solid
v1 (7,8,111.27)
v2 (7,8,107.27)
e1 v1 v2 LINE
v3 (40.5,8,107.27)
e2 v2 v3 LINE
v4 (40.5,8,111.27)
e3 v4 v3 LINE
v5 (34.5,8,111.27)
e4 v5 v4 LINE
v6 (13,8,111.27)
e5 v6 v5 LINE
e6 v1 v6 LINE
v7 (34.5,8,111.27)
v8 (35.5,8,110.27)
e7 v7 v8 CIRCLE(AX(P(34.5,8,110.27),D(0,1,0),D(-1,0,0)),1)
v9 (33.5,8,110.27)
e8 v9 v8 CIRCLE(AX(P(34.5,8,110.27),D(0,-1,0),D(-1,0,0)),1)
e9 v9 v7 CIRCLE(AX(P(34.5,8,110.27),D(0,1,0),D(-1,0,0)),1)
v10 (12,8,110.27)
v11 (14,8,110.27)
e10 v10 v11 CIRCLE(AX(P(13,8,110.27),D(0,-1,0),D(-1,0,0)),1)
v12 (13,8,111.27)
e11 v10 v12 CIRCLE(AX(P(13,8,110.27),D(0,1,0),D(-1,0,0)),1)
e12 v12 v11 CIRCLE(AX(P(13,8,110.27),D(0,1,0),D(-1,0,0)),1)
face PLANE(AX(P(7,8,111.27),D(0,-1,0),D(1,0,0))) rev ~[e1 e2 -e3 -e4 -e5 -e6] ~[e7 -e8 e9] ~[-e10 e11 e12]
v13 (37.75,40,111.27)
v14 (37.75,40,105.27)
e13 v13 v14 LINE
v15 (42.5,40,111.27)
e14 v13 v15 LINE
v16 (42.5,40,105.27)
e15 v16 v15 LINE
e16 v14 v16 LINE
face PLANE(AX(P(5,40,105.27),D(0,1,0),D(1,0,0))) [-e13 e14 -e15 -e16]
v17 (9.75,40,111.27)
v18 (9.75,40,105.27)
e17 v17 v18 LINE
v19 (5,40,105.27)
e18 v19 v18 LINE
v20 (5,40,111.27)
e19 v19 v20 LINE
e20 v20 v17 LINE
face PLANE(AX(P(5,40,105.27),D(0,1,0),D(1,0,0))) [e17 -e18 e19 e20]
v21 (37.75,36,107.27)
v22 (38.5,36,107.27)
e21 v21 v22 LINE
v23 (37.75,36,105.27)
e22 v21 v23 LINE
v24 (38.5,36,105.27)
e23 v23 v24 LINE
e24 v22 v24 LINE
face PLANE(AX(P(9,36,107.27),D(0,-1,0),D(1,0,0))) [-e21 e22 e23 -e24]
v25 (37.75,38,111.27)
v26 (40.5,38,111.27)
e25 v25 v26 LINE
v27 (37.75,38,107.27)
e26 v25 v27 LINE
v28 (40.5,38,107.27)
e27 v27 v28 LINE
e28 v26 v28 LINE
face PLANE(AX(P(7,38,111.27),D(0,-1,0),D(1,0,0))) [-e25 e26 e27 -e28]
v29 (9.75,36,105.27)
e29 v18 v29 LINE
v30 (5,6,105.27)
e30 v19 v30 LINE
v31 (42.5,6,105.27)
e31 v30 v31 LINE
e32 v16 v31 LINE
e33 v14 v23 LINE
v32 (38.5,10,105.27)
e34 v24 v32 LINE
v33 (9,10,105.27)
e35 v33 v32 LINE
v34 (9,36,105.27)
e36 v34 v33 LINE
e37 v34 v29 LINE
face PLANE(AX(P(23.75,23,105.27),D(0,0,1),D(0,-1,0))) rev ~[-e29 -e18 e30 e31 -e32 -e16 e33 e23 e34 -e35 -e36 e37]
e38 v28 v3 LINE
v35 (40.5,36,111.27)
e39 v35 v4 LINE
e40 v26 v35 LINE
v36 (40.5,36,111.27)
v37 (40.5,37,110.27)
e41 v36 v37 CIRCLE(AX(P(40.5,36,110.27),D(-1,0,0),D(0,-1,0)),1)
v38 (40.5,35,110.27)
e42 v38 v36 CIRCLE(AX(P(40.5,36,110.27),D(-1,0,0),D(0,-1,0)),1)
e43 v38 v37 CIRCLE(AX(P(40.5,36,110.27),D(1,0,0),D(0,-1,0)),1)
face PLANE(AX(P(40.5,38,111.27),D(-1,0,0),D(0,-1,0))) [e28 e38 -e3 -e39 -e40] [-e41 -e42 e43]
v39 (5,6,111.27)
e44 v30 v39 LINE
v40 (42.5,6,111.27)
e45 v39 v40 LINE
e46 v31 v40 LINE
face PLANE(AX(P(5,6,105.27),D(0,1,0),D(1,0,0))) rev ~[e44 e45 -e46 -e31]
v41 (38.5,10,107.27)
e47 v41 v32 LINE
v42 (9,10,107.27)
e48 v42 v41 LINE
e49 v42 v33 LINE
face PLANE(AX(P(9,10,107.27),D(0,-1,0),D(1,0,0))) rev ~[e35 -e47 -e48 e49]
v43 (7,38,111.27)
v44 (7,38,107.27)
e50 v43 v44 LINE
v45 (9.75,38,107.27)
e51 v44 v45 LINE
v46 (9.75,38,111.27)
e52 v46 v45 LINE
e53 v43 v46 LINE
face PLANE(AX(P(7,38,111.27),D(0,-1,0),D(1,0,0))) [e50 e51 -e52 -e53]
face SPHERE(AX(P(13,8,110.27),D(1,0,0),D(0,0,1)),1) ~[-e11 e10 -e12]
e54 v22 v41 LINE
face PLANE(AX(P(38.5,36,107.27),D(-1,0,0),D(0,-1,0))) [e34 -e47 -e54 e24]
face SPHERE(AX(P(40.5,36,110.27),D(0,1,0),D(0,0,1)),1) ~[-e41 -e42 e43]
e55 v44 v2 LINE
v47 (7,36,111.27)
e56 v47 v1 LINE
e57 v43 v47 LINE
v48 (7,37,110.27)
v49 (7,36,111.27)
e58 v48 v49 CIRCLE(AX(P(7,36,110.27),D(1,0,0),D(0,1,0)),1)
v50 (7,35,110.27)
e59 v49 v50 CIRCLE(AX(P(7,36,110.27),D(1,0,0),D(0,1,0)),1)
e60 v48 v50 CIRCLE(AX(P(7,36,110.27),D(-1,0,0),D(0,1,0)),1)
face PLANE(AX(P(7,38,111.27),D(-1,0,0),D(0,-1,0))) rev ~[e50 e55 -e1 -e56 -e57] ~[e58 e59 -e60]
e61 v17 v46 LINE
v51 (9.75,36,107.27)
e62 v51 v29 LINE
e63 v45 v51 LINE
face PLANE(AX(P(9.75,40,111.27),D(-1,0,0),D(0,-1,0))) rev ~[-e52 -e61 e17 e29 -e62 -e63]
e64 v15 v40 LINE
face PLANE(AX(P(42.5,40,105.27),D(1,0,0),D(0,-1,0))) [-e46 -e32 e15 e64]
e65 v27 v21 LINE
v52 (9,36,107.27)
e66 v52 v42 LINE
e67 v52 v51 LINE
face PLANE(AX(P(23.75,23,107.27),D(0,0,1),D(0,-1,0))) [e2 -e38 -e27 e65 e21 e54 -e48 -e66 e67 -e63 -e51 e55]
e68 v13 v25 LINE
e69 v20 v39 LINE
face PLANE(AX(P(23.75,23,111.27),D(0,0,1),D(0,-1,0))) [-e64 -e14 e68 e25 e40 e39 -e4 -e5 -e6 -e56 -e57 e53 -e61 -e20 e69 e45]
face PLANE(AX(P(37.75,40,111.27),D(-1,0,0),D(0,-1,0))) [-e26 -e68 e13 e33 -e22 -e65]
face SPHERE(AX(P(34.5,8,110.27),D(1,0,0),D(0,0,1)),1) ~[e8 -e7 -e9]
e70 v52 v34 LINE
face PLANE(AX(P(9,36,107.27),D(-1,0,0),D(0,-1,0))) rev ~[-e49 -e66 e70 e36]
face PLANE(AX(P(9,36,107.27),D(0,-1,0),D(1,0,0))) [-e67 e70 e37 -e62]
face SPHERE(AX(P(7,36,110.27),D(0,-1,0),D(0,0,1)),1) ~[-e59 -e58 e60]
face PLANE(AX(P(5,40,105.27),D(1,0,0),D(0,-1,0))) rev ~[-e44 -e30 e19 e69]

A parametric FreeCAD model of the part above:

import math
import FreeCAD as App
import Part
import Sketcher
from FreeCAD import Vector
Q = App.Units.Quantity


def add_polygon(sketch, points):
    """Adds a closed chain of lines whose ends are joined by coincident constraints."""
    first, n = sketch.GeometryCount, len(points)
    for a, b in zip(points, points[1:] + points[:1]):
        sketch.addGeometry(Part.LineSegment(App.Vector(*a, 0), App.Vector(*b, 0)), False)
    for i in range(n):
        sketch.addConstraint(Sketcher.Constraint("Coincident", first + i, 2, first + (i + 1) % n, 1))

doc = App.newDocument("Part")
params = doc.addObject("Spreadsheet::Sheet", "Params")
for row, (alias, value) in enumerate([
    ("sketch1_width", "34 mm"),
    ("sketch1_height", "37.5 mm"),
    ("pad1_length", "6 mm"),
    ("sketch2_width", "30 mm"),
    ("sketch2_height", "33.5 mm"),
    ("pocket1_length", "4 mm"),
    ("sketch3_width", "26 mm"),
    ("sketch3_height", "29.5 mm"),
    ("sketch4_width", "4 mm"),
    ("sketch4_height", "28 mm"),
    ("sketch5_radius", "1 mm"),
    ("sketch5_width", "23.5 mm"),
    ("revolution_angle", "180 deg"),
    ("sketch6_radius", "1 mm"),
    ("revolution2_angle", "180 deg"),
    ("sketch7_radius", "1 mm"),
    ("revolution3_angle", "180 deg"),
], start=1):
    params.set(f"A{row}", alias)
    params.set(f"B{row}", "=" + value)
    params.setAlias(f"B{row}", alias)

body = doc.addObject("PartDesign::Body", "Body")

# Sketch on XY plane
sketch1 = body.newObject("Sketcher::SketchObject", "Sketch")
sketch1.AttachmentSupport = (doc.getObject("XY_Plane"), [""])
sketch1.MapMode = "FlatFace"
add_polygon(sketch1, [(0, 38), (0, 0), (34, 0), (34, 38)])  # lines 0-3
sketch1.addConstraint([
    Sketcher.Constraint("Vertical", 0),
    Sketcher.Constraint("Horizontal", 1),
    Sketcher.Constraint("Vertical", 2),
    Sketcher.Constraint("Horizontal", 3),
    Sketcher.Constraint("Coincident", 0, 2, -1, 1),
    Sketcher.Constraint("DistanceX", 1, 1, 1, 2, Q("34 mm")),
    Sketcher.Constraint("DistanceY", 0, 2, 0, 1, Q("37.5 mm")),
])
sketch1.setExpression("Constraints[9]", "Params.sketch1_width")
sketch1.setExpression("Constraints[10]", "Params.sketch1_height")
pad1 = body.newObject("PartDesign::Pad", "Pad")
pad1.Profile = sketch1
pad1.setExpression("Length", "Params.pad1_length")

# Sketch on XY plane
sketch2 = body.newObject("Sketcher::SketchObject", "Sketch001")
sketch2.AttachmentSupport = (doc.getObject("XY_Plane"), [""])
sketch2.MapMode = "FlatFace"
sketch2.AttachmentOffset = App.Placement(Vector(0, 0, 6), App.Rotation())
add_polygon(sketch2, [(2, 36), (2, 2), (32, 2), (32, 36)])  # lines 0-3
sketch2.addConstraint([
    Sketcher.Constraint("Vertical", 0),
    Sketcher.Constraint("Horizontal", 1),
    Sketcher.Constraint("Vertical", 2),
    Sketcher.Constraint("Horizontal", 3),
    Sketcher.Constraint("DistanceX", 1, 1, 1, 2, Q("30 mm")),
    Sketcher.Constraint("DistanceY", 0, 2, 0, 1, Q("33.5 mm")),
    Sketcher.Constraint("DistanceX", -1, 1, 0, 2, Q("2 mm")),
    Sketcher.Constraint("DistanceY", -1, 1, 0, 2, Q("2 mm")),
])
sketch2.setExpression("Constraints[8]", "Params.sketch2_width")
sketch2.setExpression("Constraints[9]", "Params.sketch2_height")
pocket1 = body.newObject("PartDesign::Pocket", "Pocket")
pocket1.Profile = sketch2
pocket1.setExpression("Length", "Params.pocket1_length")

# Sketch on XY plane
sketch3 = body.newObject("Sketcher::SketchObject", "Sketch002")
sketch3.AttachmentSupport = (doc.getObject("XY_Plane"), [""])
sketch3.MapMode = "FlatFace"
sketch3.AttachmentOffset = App.Placement(Vector(0, 0, 2), App.Rotation())
add_polygon(sketch3, [(4, 34), (4, 4), (30, 4), (30, 34)])  # lines 0-3
sketch3.addConstraint([
    Sketcher.Constraint("Vertical", 0),
    Sketcher.Constraint("Horizontal", 1),
    Sketcher.Constraint("Vertical", 2),
    Sketcher.Constraint("Horizontal", 3),
    Sketcher.Constraint("DistanceX", 1, 1, 1, 2, Q("26 mm")),
    Sketcher.Constraint("DistanceY", 0, 2, 0, 1, Q("29.5 mm")),
    Sketcher.Constraint("DistanceX", -1, 1, 0, 2, Q("4 mm")),
    Sketcher.Constraint("DistanceY", -1, 1, 0, 2, Q("4 mm")),
])
sketch3.setExpression("Constraints[8]", "Params.sketch3_width")
sketch3.setExpression("Constraints[9]", "Params.sketch3_height")
pocket2 = body.newObject("PartDesign::Pocket", "Pocket001")
pocket2.Profile = sketch3
pocket2.Type = "ThroughAll"

# Sketch on XY plane
sketch4 = body.newObject("Sketcher::SketchObject", "Sketch003")
sketch4.AttachmentSupport = (doc.getObject("XY_Plane"), [""])
sketch4.MapMode = "FlatFace"
sketch4.AttachmentOffset = App.Placement(Vector(0, 0, 6), App.Rotation())
add_polygon(sketch4, [(0, 32.8), (0, 4.8), (4, 4.8), (4, 32.8)])  # lines 0-3
sketch4.addConstraint([
    Sketcher.Constraint("Vertical", 0),
    Sketcher.Constraint("Horizontal", 1),
    Sketcher.Constraint("Vertical", 2),
    Sketcher.Constraint("Horizontal", 3),
    Sketcher.Constraint("PointOnObject", 0, 2, -2),
    Sketcher.Constraint("DistanceX", 1, 1, 1, 2, Q("4 mm")),
    Sketcher.Constraint("DistanceY", 0, 2, 0, 1, Q("28 mm")),
    Sketcher.Constraint("DistanceY", -1, 1, 0, 2, Q("4.75 mm")),
])
sketch4.setExpression("Constraints[9]", "Params.sketch4_width")
sketch4.setExpression("Constraints[10]", "Params.sketch4_height")
pocket3 = body.newObject("PartDesign::Pocket", "Pocket002")
pocket3.Profile = sketch4
pocket3.Type = "ThroughAll"

# Sketch on YZ plane
sketch5 = body.newObject("Sketcher::SketchObject", "Sketch004")
sketch5.AttachmentSupport = (doc.getObject("YZ_Plane"), [""])
sketch5.MapMode = "FlatFace"
sketch5.AttachmentOffset = App.Placement(Vector(0, 0, 32), App.Rotation())
sketch5.addGeometry([
    Part.ArcOfCircle(Part.Circle(Vector(29.5, 5, 0), Vector(0, 0, 1), 1), math.radians(0), math.radians(180)),
    Part.LineSegment(Vector(30.5, 5, 0), Vector(28.5, 5, 0)),
    Part.ArcOfCircle(Part.Circle(Vector(8, 5, 0), Vector(0, 0, 1), 1), math.radians(0), math.radians(180)),
    Part.LineSegment(Vector(9, 5, 0), Vector(7, 5, 0)),
], False)
sketch5.addGeometry(Part.LineSegment(Vector(30.5, 5, 0), Vector(7, 5, 0)), True)  # axis
sketch5.addConstraint([
    Sketcher.Constraint("Coincident", 0, 1, 1, 1),
    Sketcher.Constraint("Coincident", 1, 2, 0, 2),
    Sketcher.Constraint("Coincident", 2, 1, 3, 1),
    Sketcher.Constraint("Coincident", 3, 2, 2, 2),
    Sketcher.Constraint("Horizontal", 1),
    Sketcher.Constraint("Horizontal", 3),
    Sketcher.Constraint("Horizontal", 4),
    Sketcher.Constraint("Coincident", 4, 1, 0, 1),
    Sketcher.Constraint("Coincident", 4, 2, 3, 2),
    Sketcher.Constraint("Equal", 0, 2),
    Sketcher.Constraint("Horizontal", 0, 3, 2, 3),
    Sketcher.Constraint("Horizontal", 2, 3, 0, 1),
    Sketcher.Constraint("Radius", 0, Q("1 mm")),
    Sketcher.Constraint("DistanceX", 4, 2, 4, 1, Q("23.5 mm")),
    Sketcher.Constraint("DistanceY", -1, 1, 0, 3, Q("5 mm")),
    Sketcher.Constraint("DistanceX", -1, 1, 2, 3, Q("8 mm")),
])
sketch5.setExpression("Constraints[12]", "Params.sketch5_radius")
sketch5.setExpression("Constraints[13]", "Params.sketch5_width")
revolution = body.newObject("PartDesign::Revolution", "Revolution")
revolution.Profile = sketch5
revolution.ReferenceAxis = (sketch5, ["Axis0"])
revolution.setExpression("Angle", "Params.revolution_angle")

# Sketch on XZ plane
sketch6 = body.newObject("Sketcher::SketchObject", "Sketch005")
sketch6.AttachmentSupport = (doc.getObject("XZ_Plane"), [""])
sketch6.MapMode = "FlatFace"
sketch6.AttachmentOffset = App.Placement(Vector(0, 0, -2), App.Rotation())
sketch6.addGeometry([
    Part.ArcOfCircle(Part.Circle(Vector(4, 5, 0), Vector(0, 0, 1), 1), math.radians(0), math.radians(180)),
    Part.LineSegment(Vector(5, 5, 0), Vector(3, 5, 0)),
], False)
sketch6.addGeometry(Part.LineSegment(Vector(3, 5, 0), Vector(5, 5, 0)), True)  # axis
sketch6.addConstraint([
    Sketcher.Constraint("Coincident", 0, 1, 1, 1),
    Sketcher.Constraint("Coincident", 1, 2, 0, 2),
    Sketcher.Constraint("Horizontal", 1),
    Sketcher.Constraint("Horizontal", 2),
    Sketcher.Constraint("Coincident", 2, 1, 1, 2),
    Sketcher.Constraint("Equal", 1, 2),
    Sketcher.Constraint("Radius", 0, Q("1 mm")),
    Sketcher.Constraint("DistanceX", -1, 1, 0, 3, Q("4 mm")),
    Sketcher.Constraint("DistanceY", -1, 1, 0, 3, Q("5 mm")),
    Sketcher.Constraint("DistanceY", -1, 1, 0, 1, Q("5 mm")),
])
sketch6.setExpression("Constraints[6]", "Params.sketch6_radius")
revolution2 = body.newObject("PartDesign::Revolution", "Revolution001")
revolution2.Profile = sketch6
revolution2.ReferenceAxis = (sketch6, ["Axis0"])
revolution2.setExpression("Angle", "Params.revolution2_angle")
revolution2.Reversed = True

# Sketch on XZ plane
sketch7 = body.newObject("Sketcher::SketchObject", "Sketch006")
sketch7.AttachmentSupport = (doc.getObject("XZ_Plane"), [""])
sketch7.MapMode = "FlatFace"
sketch7.AttachmentOffset = App.Placement(Vector(0, 0, -35.5), App.Rotation())
sketch7.addGeometry([
    Part.ArcOfCircle(Part.Circle(Vector(4, 5, 0), Vector(0, 0, 1), 1), math.radians(0), math.radians(180)),
    Part.LineSegment(Vector(3, 5, 0), Vector(5, 5, 0)),
], False)
sketch7.addGeometry(Part.LineSegment(Vector(3, 5, 0), Vector(5, 5, 0)), True)  # axis
sketch7.addConstraint([
    Sketcher.Constraint("Coincident", 0, 1, 1, 2),
    Sketcher.Constraint("Coincident", 1, 1, 0, 2),
    Sketcher.Constraint("Horizontal", 1),
    Sketcher.Constraint("Horizontal", 2),
    Sketcher.Constraint("Coincident", 2, 1, 1, 1),
    Sketcher.Constraint("Equal", 1, 2),
    Sketcher.Constraint("Radius", 0, Q("1 mm")),
    Sketcher.Constraint("DistanceX", -1, 1, 0, 3, Q("4 mm")),
    Sketcher.Constraint("DistanceY", -1, 1, 0, 3, Q("5 mm")),
    Sketcher.Constraint("DistanceY", -1, 1, 0, 1, Q("5 mm")),
])
sketch7.setExpression("Constraints[6]", "Params.sketch7_radius")
revolution3 = body.newObject("PartDesign::Revolution", "Revolution002")
revolution3.Profile = sketch7
revolution3.ReferenceAxis = (sketch7, ["Axis0"])
revolution3.setExpression("Angle", "Params.revolution3_angle")
body2 = doc.addObject("PartDesign::Body", "Body001")
doc.recompute()

body.Placement = App.Placement(Vector(5, 40, 105.27), App.Rotation(Vector(0, 0, 1), 270))
boolean = body2.newObject("PartDesign::Boolean", "Boolean")
boolean.Type = "Fuse"
boolean.addObjects([body])

doc.recompute()
